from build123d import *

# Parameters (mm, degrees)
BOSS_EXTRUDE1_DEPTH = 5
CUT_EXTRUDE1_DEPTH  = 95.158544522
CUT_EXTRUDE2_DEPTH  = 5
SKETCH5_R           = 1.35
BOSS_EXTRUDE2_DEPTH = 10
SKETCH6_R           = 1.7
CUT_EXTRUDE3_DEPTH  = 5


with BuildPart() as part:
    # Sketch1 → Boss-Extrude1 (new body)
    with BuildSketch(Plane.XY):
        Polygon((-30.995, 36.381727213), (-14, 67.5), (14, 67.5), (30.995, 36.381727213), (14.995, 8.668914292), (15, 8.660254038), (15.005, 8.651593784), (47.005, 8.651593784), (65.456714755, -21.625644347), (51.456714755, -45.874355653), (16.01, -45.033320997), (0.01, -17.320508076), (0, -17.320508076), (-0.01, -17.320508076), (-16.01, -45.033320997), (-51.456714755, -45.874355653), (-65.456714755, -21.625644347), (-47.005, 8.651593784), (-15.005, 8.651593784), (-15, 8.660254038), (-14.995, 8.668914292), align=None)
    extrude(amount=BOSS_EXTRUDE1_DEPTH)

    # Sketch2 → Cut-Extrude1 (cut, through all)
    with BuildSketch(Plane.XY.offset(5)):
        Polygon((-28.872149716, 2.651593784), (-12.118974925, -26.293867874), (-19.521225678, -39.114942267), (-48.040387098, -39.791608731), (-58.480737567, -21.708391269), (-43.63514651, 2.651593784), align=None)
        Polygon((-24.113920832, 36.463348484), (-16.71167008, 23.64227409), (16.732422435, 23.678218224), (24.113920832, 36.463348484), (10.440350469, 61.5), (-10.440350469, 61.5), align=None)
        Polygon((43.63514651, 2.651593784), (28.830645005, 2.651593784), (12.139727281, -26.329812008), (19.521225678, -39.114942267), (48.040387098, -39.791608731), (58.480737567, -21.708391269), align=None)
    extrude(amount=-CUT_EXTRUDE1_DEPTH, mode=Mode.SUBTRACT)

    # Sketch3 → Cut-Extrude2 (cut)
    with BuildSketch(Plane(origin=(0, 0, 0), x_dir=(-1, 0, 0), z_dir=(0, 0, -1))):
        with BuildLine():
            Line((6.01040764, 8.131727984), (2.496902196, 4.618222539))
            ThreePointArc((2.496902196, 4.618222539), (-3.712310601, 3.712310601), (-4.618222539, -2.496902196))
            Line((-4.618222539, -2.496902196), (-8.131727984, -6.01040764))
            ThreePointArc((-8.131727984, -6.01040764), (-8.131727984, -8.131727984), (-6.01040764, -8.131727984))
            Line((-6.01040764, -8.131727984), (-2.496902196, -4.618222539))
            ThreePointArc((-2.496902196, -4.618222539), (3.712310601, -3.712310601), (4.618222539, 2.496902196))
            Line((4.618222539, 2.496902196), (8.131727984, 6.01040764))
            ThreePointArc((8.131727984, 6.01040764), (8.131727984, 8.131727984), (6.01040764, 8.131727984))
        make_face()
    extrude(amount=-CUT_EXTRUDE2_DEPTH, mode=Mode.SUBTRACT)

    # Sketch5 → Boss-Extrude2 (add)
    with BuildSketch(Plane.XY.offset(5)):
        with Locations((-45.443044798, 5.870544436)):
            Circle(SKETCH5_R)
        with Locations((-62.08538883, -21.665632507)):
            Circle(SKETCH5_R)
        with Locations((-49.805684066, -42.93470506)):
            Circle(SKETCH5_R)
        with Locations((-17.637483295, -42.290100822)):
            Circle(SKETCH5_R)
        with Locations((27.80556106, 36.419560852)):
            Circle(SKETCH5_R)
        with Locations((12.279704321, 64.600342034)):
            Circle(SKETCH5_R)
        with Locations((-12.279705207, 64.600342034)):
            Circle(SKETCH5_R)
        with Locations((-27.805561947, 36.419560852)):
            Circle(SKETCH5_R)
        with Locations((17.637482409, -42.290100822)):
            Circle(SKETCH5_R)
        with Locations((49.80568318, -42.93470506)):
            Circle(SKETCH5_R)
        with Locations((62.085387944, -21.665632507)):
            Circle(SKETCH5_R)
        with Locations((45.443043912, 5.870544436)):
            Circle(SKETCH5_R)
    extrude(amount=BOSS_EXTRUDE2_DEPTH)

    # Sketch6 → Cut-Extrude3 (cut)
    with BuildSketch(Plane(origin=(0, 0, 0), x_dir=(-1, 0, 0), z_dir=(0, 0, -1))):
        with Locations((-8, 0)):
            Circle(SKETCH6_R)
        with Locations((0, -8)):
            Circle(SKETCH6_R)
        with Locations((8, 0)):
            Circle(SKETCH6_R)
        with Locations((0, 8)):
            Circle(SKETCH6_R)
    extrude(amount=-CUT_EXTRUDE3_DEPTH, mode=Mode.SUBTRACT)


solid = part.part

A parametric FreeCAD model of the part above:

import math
import FreeCAD as App
import Part
import Sketcher
Q = App.Units.Quantity

doc = App.newDocument("Part")
body = doc.addObject("PartDesign::Body", "Body")

sketch1 = body.newObject("Sketcher::SketchObject", "Sketch")
sketch1.AttachmentSupport = (doc.getObject("XY_Plane"), [""])
sketch1.MapMode = "FlatFace"
sketch1.addGeometry([
    Part.LineSegment(App.Vector(-14, 67.5, 0), App.Vector(-30.995, 36.382, 0)),
    Part.LineSegment(App.Vector(-30.995, 36.382, 0), App.Vector(-14.995, 8.669, 0)),
    Part.LineSegment(App.Vector(-14.995, 8.669, 0), App.Vector(-15.005, 8.652, 0)),
    Part.LineSegment(App.Vector(-15.005, 8.652, 0), App.Vector(-47.005, 8.652, 0)),
    Part.LineSegment(App.Vector(-47.005, 8.652, 0), App.Vector(-65.457, -21.626, 0)),
    Part.LineSegment(App.Vector(-65.457, -21.626, 0), App.Vector(-51.457, -45.874, 0)),
    Part.LineSegment(App.Vector(-51.457, -45.874, 0), App.Vector(-16.01, -45.033, 0)),
    Part.LineSegment(App.Vector(-16.01, -45.033, 0), App.Vector(-0.01, -17.321, 0)),
    Part.LineSegment(App.Vector(-0.01, -17.321, 0), App.Vector(0.01, -17.321, 0)),
    Part.LineSegment(App.Vector(0.01, -17.321, 0), App.Vector(16.01, -45.033, 0)),
    Part.LineSegment(App.Vector(16.01, -45.033, 0), App.Vector(51.457, -45.874, 0)),
    Part.LineSegment(App.Vector(51.457, -45.874, 0), App.Vector(65.457, -21.626, 0)),
    Part.LineSegment(App.Vector(65.457, -21.626, 0), App.Vector(47.005, 8.652, 0)),
    Part.LineSegment(App.Vector(47.005, 8.652, 0), App.Vector(15.005, 8.652, 0)),
    Part.LineSegment(App.Vector(15.005, 8.652, 0), App.Vector(14.995, 8.669, 0)),
    Part.LineSegment(App.Vector(14.995, 8.669, 0), App.Vector(30.995, 36.382, 0)),
    Part.LineSegment(App.Vector(30.995, 36.382, 0), App.Vector(14, 67.5, 0)),
    Part.LineSegment(App.Vector(14, 67.5, 0), App.Vector(-14, 67.5, 0)),
], False)
sketch1.addConstraint([
    Sketcher.Constraint("Coincident", 0, 2, 1, 1),
    Sketcher.Constraint("Coincident", 1, 2, 2, 1),
    Sketcher.Constraint("Coincident", 2, 2, 3, 1),
    Sketcher.Constraint("Coincident", 3, 2, 4, 1),
    Sketcher.Constraint("Coincident", 4, 2, 5, 1),
    Sketcher.Constraint("Coincident", 5, 2, 6, 1),
    Sketcher.Constraint("Coincident", 6, 2, 7, 1),
    Sketcher.Constraint("Coincident", 7, 2, 8, 1),
    Sketcher.Constraint("Coincident", 8, 2, 9, 1),
    Sketcher.Constraint("Coincident", 9, 2, 10, 1),
    Sketcher.Constraint("Coincident", 10, 2, 11, 1),
    Sketcher.Constraint("Coincident", 11, 2, 12, 1),
    Sketcher.Constraint("Coincident", 12, 2, 13, 1),
    Sketcher.Constraint("Coincident", 13, 2, 14, 1),
    Sketcher.Constraint("Coincident", 14, 2, 15, 1),
    Sketcher.Constraint("Coincident", 15, 2, 16, 1),
    Sketcher.Constraint("Coincident", 16, 2, 17, 1),
    Sketcher.Constraint("Coincident", 17, 2, 0, 1),
    Sketcher.Constraint("Horizontal", 3),
    Sketcher.Constraint("Horizontal", 8),
    Sketcher.Constraint("Horizontal", 13),
    Sketcher.Constraint("Horizontal", 17),
    Sketcher.Constraint("Symmetric", 6, 2, 9, 2, -2),
    Sketcher.Constraint("Symmetric", 5, 2, 10, 2, -2),
    Sketcher.Constraint("Symmetric", 4, 2, 11, 2, -2),
    Sketcher.Constraint("Symmetric", 3, 2, 12, 2, -2),
    Sketcher.Constraint("Symmetric", 1, 2, 14, 2, -2),
    Sketcher.Constraint("Symmetric", 0, 2, 15, 2, -2),
    Sketcher.Constraint("Parallel", 1, 5),
    Sketcher.Constraint("Parallel", 2, 7),
    Sketcher.Constraint("Parallel", 5, 9),
    Sketcher.Constraint("Parallel", 7, 11),
    Sketcher.Constraint("Parallel", 9, 14),
    Sketcher.Constraint("Equal", 0, 4),
    Sketcher.Constraint("Equal", 4, 6),
    Sketcher.Constraint("Equal", 1, 7),
    Sketcher.Constraint("Equal", 12, 16),
    Sketcher.Constraint("DistanceX", 3, 2, 3, 1, Q("32 mm")),
    Sketcher.Constraint("DistanceX", 17, 2, 17, 1, Q("28 mm")),
    Sketcher.Constraint("Angle", 1, Q("-60 deg")),
    Sketcher.Constraint("Distance", 1, Q("32 mm")),
    Sketcher.Constraint("Distance", 5, Q("28 mm")),
    Sketcher.Constraint("DistanceX", 1, 2, 13, 2, Q("30 mm")),
    Sketcher.Constraint("DistanceX", 8, 1, 8, 2, Q("0.02 mm")),
    Sketcher.Constraint("DistanceY", -1, 1, 16, 2, Q("67.5 mm")),
    Sketcher.Constraint("Distance", 2, Q("0.02 mm")),
    Sketcher.Constraint("DistanceY", 7, 2, 2, 2, Q("25.972102 mm")),
    Sketcher.Constraint("Distance", 0, Q("35.456691 mm")),
])
pad1 = body.newObject("PartDesign::Pad", "Pad")
pad1.Profile = sketch1
pad1.Length = 5

sketch2 = body.newObject("Sketcher::SketchObject", "Sketch001")
sketch2.AttachmentSupport = (doc.getObject("XY_Plane"), [""])
sketch2.MapMode = "FlatFace"
sketch2.AttachmentOffset = App.Placement(App.Vector(0, 0, 5), App.Rotation())
sketch2.addGeometry([
    Part.LineSegment(App.Vector(-12, -26, 0), App.Vector(-29, 3, 0)),
    Part.LineSegment(App.Vector(-29, 3, 0), App.Vector(-44, 3, 0)),
    Part.LineSegment(App.Vector(-44, 3, 0), App.Vector(-58, -22, 0)),
    Part.LineSegment(App.Vector(-58, -22, 0), App.Vector(-48, -40, 0)),
    Part.LineSegment(App.Vector(-48, -40, 0), App.Vector(-20, -39, 0)),
    Part.LineSegment(App.Vector(-20, -39, 0), App.Vector(-12, -26, 0)),
    Part.LineSegment(App.Vector(-24, 36, 0), App.Vector(-17, 24, 0)),
    Part.LineSegment(App.Vector(-17, 24, 0), App.Vector(17, 24, 0)),
    Part.LineSegment(App.Vector(17, 24, 0), App.Vector(24, 36, 0)),
    Part.LineSegment(App.Vector(24, 36, 0), App.Vector(10, 62, 0)),
    Part.LineSegment(App.Vector(10, 62, 0), App.Vector(-10, 62, 0)),
    Part.LineSegment(App.Vector(-10, 62, 0), App.Vector(-24, 36, 0)),
    Part.LineSegment(App.Vector(44, 3, 0), App.Vector(29, 3, 0)),
    Part.LineSegment(App.Vector(29, 3, 0), App.Vector(12, -26, 0)),
    Part.LineSegment(App.Vector(12, -26, 0), App.Vector(20, -39, 0)),
    Part.LineSegment(App.Vector(20, -39, 0), App.Vector(48, -40, 0)),
    Part.LineSegment(App.Vector(48, -40, 0), App.Vector(58, -22, 0)),
    Part.LineSegment(App.Vector(58, -22, 0), App.Vector(44, 3, 0)),
], False)
sketch2.addConstraint([
    Sketcher.Constraint("Coincident", 0, 2, 1, 1),
    Sketcher.Constraint("Coincident", 1, 2, 2, 1),
    Sketcher.Constraint("Coincident", 2, 2, 3, 1),
    Sketcher.Constraint("Coincident", 3, 2, 4, 1),
    Sketcher.Constraint("Coincident", 4, 2, 5, 1),
    Sketcher.Constraint("Coincident", 5, 2, 0, 1),
    Sketcher.Constraint("Coincident", 6, 2, 7, 1),
    Sketcher.Constraint("Coincident", 7, 2, 8, 1),
    Sketcher.Constraint("Coincident", 8, 2, 9, 1),
    Sketcher.Constraint("Coincident", 9, 2, 10, 1),
    Sketcher.Constraint("Coincident", 10, 2, 11, 1),
    Sketcher.Constraint("Coincident", 11, 2, 6, 1),
    Sketcher.Constraint("Coincident", 12, 2, 13, 1),
    Sketcher.Constraint("Coincident", 13, 2, 14, 1),
    Sketcher.Constraint("Coincident", 14, 2, 15, 1),
    Sketcher.Constraint("Coincident", 15, 2, 16, 1),
    Sketcher.Constraint("Coincident", 16, 2, 17, 1),
    Sketcher.Constraint("Coincident", 17, 2, 12, 1),
    Sketcher.Constraint("Horizontal", 1),
    Sketcher.Constraint("Horizontal", 10),
    Sketcher.Constraint("Horizontal", 12),
    Sketcher.Constraint("Symmetric", 8, 2, 11, 2, -2),
    Sketcher.Constraint("Symmetric", 4, 2, 14, 2, -2),
    Sketcher.Constraint("Symmetric", 3, 2, 15, 2, -2),
    Sketcher.Constraint("Symmetric", 2, 2, 16, 2, -2),
    Sketcher.Constraint("Symmetric", 1, 2, 17, 2, -2),
    Sketcher.Constraint("Parallel", 3, 6),
    Sketcher.Constraint("Parallel", 5, 8),
    Sketcher.Constraint("Parallel", 6, 14),
    Sketcher.Constraint("Parallel", 8, 16),
    Sketcher.Constraint("Equal", 2, 4),
    Sketcher.Constraint("Equal", 5, 6),
    Sketcher.Constraint("Equal", 0, 7),
    Sketcher.Constraint("Equal", 4, 9),
    Sketcher.Constraint("Equal", 9, 11),
    Sketcher.Constraint("Equal", 7, 13),
    Sketcher.Constraint("Equal", 8, 14),
    Sketcher.Constraint("Angle", 3, Q("-60 deg")),
    Sketcher.Constraint("DistanceY", -1, 1, 9, 2, Q("61.5 mm")),
    Sketcher.Constraint("DistanceX", 10, 2, 10, 1, Q("20.880701 mm")),
    Sketcher.Constraint("DistanceX", 12, 2, 12, 1, Q("14.804502 mm")),
    Sketcher.Constraint("Distance", 3, Q("20.880701 mm")),
    Sketcher.Constraint("Distance", 5, Q("14.804502 mm")),
    Sketcher.Constraint("DistanceX", 7, 2, 8, 2, Q("7.381498 mm")),
    Sketcher.Constraint("DistanceX", 0, 2, 9, 2, Q("39.3125 mm")),
    Sketcher.Constraint("DistanceX", 5, 2, 14, 2, Q("31.640201 mm")),
    Sketcher.Constraint("Distance", 0, Q("33.444112 mm")),
    Sketcher.Constraint("DistanceY", 2, 2, -1, 1, Q("21.708391 mm")),
    Sketcher.Constraint("DistanceY", -1, 1, 7, 2, Q("23.678218 mm")),
])
pocket1 = body.newObject("PartDesign::Pocket", "Pocket")
pocket1.Profile = sketch2
pocket1.Type = "ThroughAll"

sketch3 = body.newObject("Sketcher::SketchObject", "Sketch002")
sketch3.AttachmentSupport = (doc.getObject("XY_Plane"), [""])
sketch3.MapMode = "FlatFace"
sketch3.addGeometry([
    Part.LineSegment(App.Vector(-6, 8.1, 0), App.Vector(-2.5, 4.6, 0)),
    Part.ArcOfCircle(Part.Circle(App.Vector(0, 0, 0), App.Vector(0, 0, 1), 5.2), math.radians(-28), math.radians(118)),
    Part.LineSegment(App.Vector(4.6, -2.5, 0), App.Vector(8.1, -6, 0)),
    Part.ArcOfCircle(Part.Circle(App.Vector(7.1, -7.1, 0), App.Vector(0, 0, 1), 1.5), math.radians(-135), math.radians(45)),
    Part.LineSegment(App.Vector(6, -8.1, 0), App.Vector(2.5, -4.6, 0)),
    Part.ArcOfCircle(Part.Circle(App.Vector(0, 0, 0), App.Vector(0, 0, 1), 5.2), math.radians(152), math.radians(298)),
    Part.LineSegment(App.Vector(-4.6, 2.5, 0), App.Vector(-8.1, 6, 0)),
    Part.ArcOfCircle(Part.Circle(App.Vector(-7.1, 7.1, 0), App.Vector(0, 0, 1), 1.5), math.radians(45), math.radians(225)),
], False)
sketch3.addConstraint([
    Sketcher.Constraint("Coincident", 0, 2, 1, 2),
    Sketcher.Constraint("Coincident", 1, 1, 2, 1),
    Sketcher.Constraint("Tangent", 2, 2, 3, 2),
    Sketcher.Constraint("Tangent", 3, 1, 4, 1),
    Sketcher.Constraint("Coincident", 4, 2, 5, 2),
    Sketcher.Constraint("Coincident", 5, 1, 6, 1),
    Sketcher.Constraint("Tangent", 6, 2, 7, 2),
    Sketcher.Constraint("Tangent", 7, 1, 0, 1),
    Sketcher.Constraint("Coincident", 1, 3, -1, 1),
    Sketcher.Constraint("Coincident", 5, 3, -1, 1),
    Sketcher.Constraint("Equal", 1, 5),
    Sketcher.Constraint("Equal", 3, 7),
    Sketcher.Constraint("Symmetric", 3, 3, 7, 3, -1, 1),
    Sketcher.Constraint("Parallel", 0, 2),
    Sketcher.Constraint("Parallel", 2, 4),
    Sketcher.Constraint("Parallel", 4, 6),
    Sketcher.Constraint("Equal", 0, 2),
    Sketcher.Constraint("Radius", 3, Q("1.5 mm")),
    Sketcher.Constraint("Angle", 0, Q("-45 deg")),
    Sketcher.Constraint("Radius", 1, Q("5.25 mm")),
    Sketcher.Constraint("DistanceX", 0, 2, 3, 3, Q("9.56797 mm")),
])
pocket2 = body.newObject("PartDesign::Pocket", "Pocket001")
pocket2.Profile = sketch3
pocket2.Length = 5
pocket2.Reversed = True

sketch4 = body.newObject("Sketcher::SketchObject", "Sketch003")
sketch4.AttachmentSupport = (doc.getObject("XY_Plane"), [""])
sketch4.MapMode = "FlatFace"
sketch4.AttachmentOffset = App.Placement(App.Vector(0, 0, 5), App.Rotation())
sketch4.addGeometry([
    Part.Circle(App.Vector(-45.4, 5.9, 0), App.Vector(0, 0, 1), 1.4),
    Part.Circle(App.Vector(-62.1, -21.7, 0), App.Vector(0, 0, 1), 1.4),
    Part.Circle(App.Vector(-49.8, -42.9, 0), App.Vector(0, 0, 1), 1.4),
    Part.Circle(App.Vector(-17.6, -42.3, 0), App.Vector(0, 0, 1), 1.4),
    Part.Circle(App.Vector(27.8, 36.4, 0), App.Vector(0, 0, 1), 1.4),
    Part.Circle(App.Vector(12.3, 64.6, 0), App.Vector(0, 0, 1), 1.4),
    Part.Circle(App.Vector(-12.3, 64.6, 0), App.Vector(0, 0, 1), 1.4),
    Part.Circle(App.Vector(-27.8, 36.4, 0), App.Vector(0, 0, 1), 1.4),
    Part.Circle(App.Vector(17.6, -42.3, 0), App.Vector(0, 0, 1), 1.4),
    Part.Circle(App.Vector(49.8, -42.9, 0), App.Vector(0, 0, 1), 1.4),
    Part.Circle(App.Vector(62.1, -21.7, 0), App.Vector(0, 0, 1), 1.4),
    Part.Circle(App.Vector(45.4, 5.9, 0), App.Vector(0, 0, 1), 1.4),
], False)
sketch4.addConstraint([
    Sketcher.Constraint("Equal", 0, 1),
    Sketcher.Constraint("Equal", 1, 2),
    Sketcher.Constraint("Equal", 2, 3),
    Sketcher.Constraint("Equal", 3, 4),
    Sketcher.Constraint("Equal", 4, 5),
    Sketcher.Constraint("Equal", 5, 6),
    Sketcher.Constraint("Equal", 6, 7),
    Sketcher.Constraint("Equal", 7, 8),
    Sketcher.Constraint("Equal", 8, 9),
    Sketcher.Constraint("Equal", 9, 10),
    Sketcher.Constraint("Equal", 10, 11),
    Sketcher.Constraint("Symmetric", 5, 3, 6, 3, -2),
    Sketcher.Constraint("Symmetric", 4, 3, 7, 3, -2),
    Sketcher.Constraint("Symmetric", 3, 3, 8, 3, -2),
    Sketcher.Constraint("Symmetric", 2, 3, 9, 3, -2),
    Sketcher.Constraint("Symmetric", 1, 3, 10, 3, -2),
    Sketcher.Constraint("Symmetric", 0, 3, 11, 3, -2),
    Sketcher.Constraint("Diameter", 0, Q("2.7 mm")),
    Sketcher.Constraint("DistanceY", 3, 3, -1, 1, Q("42.290101 mm")),
    Sketcher.Constraint("DistanceX", 2, 3, 3, 3, Q("32.168201 mm")),
    Sketcher.Constraint("DistanceX", 1, 3, -1, 1, Q("62.085389 mm")),
    Sketcher.Constraint("DistanceX", -1, 1, 4, 3, Q("27.805561 mm")),
    Sketcher.Constraint("DistanceY", -1, 1, 4, 3, Q("36.419561 mm")),
    Sketcher.Constraint("DistanceX", 2, 3, 0, 3, Q("4.362639 mm")),
    Sketcher.Constraint("DistanceY", 2, 3, 0, 3, Q("48.805249 mm")),
    Sketcher.Constraint("DistanceY", 3, 3, 1, 3, Q("20.624468 mm")),
    Sketcher.Constraint("DistanceY", 4, 3, 5, 3, Q("28.180781 mm")),
    Sketcher.Constraint("DistanceX", 0, 3, 5, 3, Q("57.722749 mm")),
    Sketcher.Constraint("DistanceX", 6, 3, 5, 3, Q("24.55941 mm")),
    Sketcher.Constraint("DistanceY", -1, 1, 0, 3, Q("5.870544 mm")),
])
pad2 = body.newObject("PartDesign::Pad", "Pad001")
pad2.Profile = sketch4
pad2.Length = 10

sketch5 = body.newObject("Sketcher::SketchObject", "Sketch004")
sketch5.AttachmentSupport = (doc.getObject("XY_Plane"), [""])
sketch5.MapMode = "FlatFace"
sketch5.addGeometry([
    Part.Circle(App.Vector(8, 0, 0), App.Vector(0, 0, 1), 1.7),
    Part.Circle(App.Vector(0, -8, 0), App.Vector(0, 0, 1), 1.7),
    Part.Circle(App.Vector(-8, 0, 0), App.Vector(0, 0, 1), 1.7),
    Part.Circle(App.Vector(0, 8, 0), App.Vector(0, 0, 1), 1.7),
], False)
sketch5.addConstraint([
    Sketcher.Constraint("Equal", 0, 1),
    Sketcher.Constraint("Equal", 1, 2),
    Sketcher.Constraint("Equal", 2, 3),
    Sketcher.Constraint("Symmetric", 0, 3, 2, 3, -1, 1),
    Sketcher.Constraint("Symmetric", 1, 3, 3, 3, -1, 1),
    Sketcher.Constraint("PointOnObject", 0, 3, -1),
    Sketcher.Constraint("PointOnObject", 1, 3, -2),
    Sketcher.Constraint("Diameter", 0, Q("3.4 mm")),
    Sketcher.Constraint("DistanceX", -1, 1, 0, 3, Q("8 mm")),
    Sketcher.Constraint("DistanceY", 1, 3, -1, 1, Q("8 mm")),
])
pocket3 = body.newObject("PartDesign::Pocket", "Pocket002")
pocket3.Profile = sketch5
pocket3.Length = 5
pocket3.Reversed = True

doc.recompute()
